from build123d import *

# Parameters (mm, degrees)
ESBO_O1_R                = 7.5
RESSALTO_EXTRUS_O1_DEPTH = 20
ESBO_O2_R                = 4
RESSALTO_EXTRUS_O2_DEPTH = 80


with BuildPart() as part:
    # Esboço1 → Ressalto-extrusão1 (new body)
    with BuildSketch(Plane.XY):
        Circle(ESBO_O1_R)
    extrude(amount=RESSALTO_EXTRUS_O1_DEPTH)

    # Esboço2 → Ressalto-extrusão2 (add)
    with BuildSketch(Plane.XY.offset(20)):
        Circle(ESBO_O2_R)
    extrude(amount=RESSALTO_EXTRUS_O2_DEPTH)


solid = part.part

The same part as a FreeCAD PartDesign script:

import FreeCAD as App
import Part
import Sketcher
from FreeCAD import Vector
Q = App.Units.Quantity

doc = App.newDocument("Part")
params = doc.addObject("Spreadsheet::Sheet", "Params")
for row, (alias, value) in enumerate([
    ("sketch1_diameter", "15 mm"),
    ("pad1_length", "20 mm"),
    ("sketch2_diameter", "8 mm"),
    ("pad2_length", "80 mm"),
], start=1):
    params.set(f"A{row}", alias)
    params.set(f"B{row}", "=" + value)
    params.setAlias(f"B{row}", alias)

body = doc.addObject("PartDesign::Body", "Body")

# Sketch on XY plane
sketch1 = doc.addObject("Sketcher::SketchObject", "Sketch")
body.addObject(sketch1)
sketch1.AttachmentSupport = (doc.XY_Plane, [""])
sketch1.MapMode = "FlatFace"
sketch1.addGeometry(Part.Circle(Vector(0, 0, 0), Vector(0, 0, 1), 8), False)
sketch1.addConstraint([
    Sketcher.Constraint("Coincident", 0, 3, -1, 1),
    Sketcher.Constraint("Diameter", 0, Q("15 mm")),
])
sketch1.setExpression("Constraints[1]", "Params.sketch1_diameter")
pad1 = doc.addObject("PartDesign::Pad", "Pad")
body.addObject(pad1)
pad1.Profile = sketch1
pad1.setExpression("Length", "Params.pad1_length")

# Sketch on XY plane
sketch2 = doc.addObject("Sketcher::SketchObject", "Sketch001")
body.addObject(sketch2)
sketch2.AttachmentSupport = (doc.XY_Plane, [""])
sketch2.MapMode = "FlatFace"
sketch2.AttachmentOffset = App.Placement(Vector(0, 0, 20), App.Rotation())
sketch2.addGeometry(Part.Circle(Vector(0, 0, 0), Vector(0, 0, 1), 4), False)
sketch2.addConstraint([
    Sketcher.Constraint("Coincident", 0, 3, -1, 1),
    Sketcher.Constraint("Diameter", 0, Q("8 mm")),
])
sketch2.setExpression("Constraints[1]", "Params.sketch2_diameter")
pad2 = doc.addObject("PartDesign::Pad", "Pad001")
body.addObject(pad2)
pad2.Profile = sketch2
pad2.setExpression("Length", "Params.pad2_length")

doc.recompute()
